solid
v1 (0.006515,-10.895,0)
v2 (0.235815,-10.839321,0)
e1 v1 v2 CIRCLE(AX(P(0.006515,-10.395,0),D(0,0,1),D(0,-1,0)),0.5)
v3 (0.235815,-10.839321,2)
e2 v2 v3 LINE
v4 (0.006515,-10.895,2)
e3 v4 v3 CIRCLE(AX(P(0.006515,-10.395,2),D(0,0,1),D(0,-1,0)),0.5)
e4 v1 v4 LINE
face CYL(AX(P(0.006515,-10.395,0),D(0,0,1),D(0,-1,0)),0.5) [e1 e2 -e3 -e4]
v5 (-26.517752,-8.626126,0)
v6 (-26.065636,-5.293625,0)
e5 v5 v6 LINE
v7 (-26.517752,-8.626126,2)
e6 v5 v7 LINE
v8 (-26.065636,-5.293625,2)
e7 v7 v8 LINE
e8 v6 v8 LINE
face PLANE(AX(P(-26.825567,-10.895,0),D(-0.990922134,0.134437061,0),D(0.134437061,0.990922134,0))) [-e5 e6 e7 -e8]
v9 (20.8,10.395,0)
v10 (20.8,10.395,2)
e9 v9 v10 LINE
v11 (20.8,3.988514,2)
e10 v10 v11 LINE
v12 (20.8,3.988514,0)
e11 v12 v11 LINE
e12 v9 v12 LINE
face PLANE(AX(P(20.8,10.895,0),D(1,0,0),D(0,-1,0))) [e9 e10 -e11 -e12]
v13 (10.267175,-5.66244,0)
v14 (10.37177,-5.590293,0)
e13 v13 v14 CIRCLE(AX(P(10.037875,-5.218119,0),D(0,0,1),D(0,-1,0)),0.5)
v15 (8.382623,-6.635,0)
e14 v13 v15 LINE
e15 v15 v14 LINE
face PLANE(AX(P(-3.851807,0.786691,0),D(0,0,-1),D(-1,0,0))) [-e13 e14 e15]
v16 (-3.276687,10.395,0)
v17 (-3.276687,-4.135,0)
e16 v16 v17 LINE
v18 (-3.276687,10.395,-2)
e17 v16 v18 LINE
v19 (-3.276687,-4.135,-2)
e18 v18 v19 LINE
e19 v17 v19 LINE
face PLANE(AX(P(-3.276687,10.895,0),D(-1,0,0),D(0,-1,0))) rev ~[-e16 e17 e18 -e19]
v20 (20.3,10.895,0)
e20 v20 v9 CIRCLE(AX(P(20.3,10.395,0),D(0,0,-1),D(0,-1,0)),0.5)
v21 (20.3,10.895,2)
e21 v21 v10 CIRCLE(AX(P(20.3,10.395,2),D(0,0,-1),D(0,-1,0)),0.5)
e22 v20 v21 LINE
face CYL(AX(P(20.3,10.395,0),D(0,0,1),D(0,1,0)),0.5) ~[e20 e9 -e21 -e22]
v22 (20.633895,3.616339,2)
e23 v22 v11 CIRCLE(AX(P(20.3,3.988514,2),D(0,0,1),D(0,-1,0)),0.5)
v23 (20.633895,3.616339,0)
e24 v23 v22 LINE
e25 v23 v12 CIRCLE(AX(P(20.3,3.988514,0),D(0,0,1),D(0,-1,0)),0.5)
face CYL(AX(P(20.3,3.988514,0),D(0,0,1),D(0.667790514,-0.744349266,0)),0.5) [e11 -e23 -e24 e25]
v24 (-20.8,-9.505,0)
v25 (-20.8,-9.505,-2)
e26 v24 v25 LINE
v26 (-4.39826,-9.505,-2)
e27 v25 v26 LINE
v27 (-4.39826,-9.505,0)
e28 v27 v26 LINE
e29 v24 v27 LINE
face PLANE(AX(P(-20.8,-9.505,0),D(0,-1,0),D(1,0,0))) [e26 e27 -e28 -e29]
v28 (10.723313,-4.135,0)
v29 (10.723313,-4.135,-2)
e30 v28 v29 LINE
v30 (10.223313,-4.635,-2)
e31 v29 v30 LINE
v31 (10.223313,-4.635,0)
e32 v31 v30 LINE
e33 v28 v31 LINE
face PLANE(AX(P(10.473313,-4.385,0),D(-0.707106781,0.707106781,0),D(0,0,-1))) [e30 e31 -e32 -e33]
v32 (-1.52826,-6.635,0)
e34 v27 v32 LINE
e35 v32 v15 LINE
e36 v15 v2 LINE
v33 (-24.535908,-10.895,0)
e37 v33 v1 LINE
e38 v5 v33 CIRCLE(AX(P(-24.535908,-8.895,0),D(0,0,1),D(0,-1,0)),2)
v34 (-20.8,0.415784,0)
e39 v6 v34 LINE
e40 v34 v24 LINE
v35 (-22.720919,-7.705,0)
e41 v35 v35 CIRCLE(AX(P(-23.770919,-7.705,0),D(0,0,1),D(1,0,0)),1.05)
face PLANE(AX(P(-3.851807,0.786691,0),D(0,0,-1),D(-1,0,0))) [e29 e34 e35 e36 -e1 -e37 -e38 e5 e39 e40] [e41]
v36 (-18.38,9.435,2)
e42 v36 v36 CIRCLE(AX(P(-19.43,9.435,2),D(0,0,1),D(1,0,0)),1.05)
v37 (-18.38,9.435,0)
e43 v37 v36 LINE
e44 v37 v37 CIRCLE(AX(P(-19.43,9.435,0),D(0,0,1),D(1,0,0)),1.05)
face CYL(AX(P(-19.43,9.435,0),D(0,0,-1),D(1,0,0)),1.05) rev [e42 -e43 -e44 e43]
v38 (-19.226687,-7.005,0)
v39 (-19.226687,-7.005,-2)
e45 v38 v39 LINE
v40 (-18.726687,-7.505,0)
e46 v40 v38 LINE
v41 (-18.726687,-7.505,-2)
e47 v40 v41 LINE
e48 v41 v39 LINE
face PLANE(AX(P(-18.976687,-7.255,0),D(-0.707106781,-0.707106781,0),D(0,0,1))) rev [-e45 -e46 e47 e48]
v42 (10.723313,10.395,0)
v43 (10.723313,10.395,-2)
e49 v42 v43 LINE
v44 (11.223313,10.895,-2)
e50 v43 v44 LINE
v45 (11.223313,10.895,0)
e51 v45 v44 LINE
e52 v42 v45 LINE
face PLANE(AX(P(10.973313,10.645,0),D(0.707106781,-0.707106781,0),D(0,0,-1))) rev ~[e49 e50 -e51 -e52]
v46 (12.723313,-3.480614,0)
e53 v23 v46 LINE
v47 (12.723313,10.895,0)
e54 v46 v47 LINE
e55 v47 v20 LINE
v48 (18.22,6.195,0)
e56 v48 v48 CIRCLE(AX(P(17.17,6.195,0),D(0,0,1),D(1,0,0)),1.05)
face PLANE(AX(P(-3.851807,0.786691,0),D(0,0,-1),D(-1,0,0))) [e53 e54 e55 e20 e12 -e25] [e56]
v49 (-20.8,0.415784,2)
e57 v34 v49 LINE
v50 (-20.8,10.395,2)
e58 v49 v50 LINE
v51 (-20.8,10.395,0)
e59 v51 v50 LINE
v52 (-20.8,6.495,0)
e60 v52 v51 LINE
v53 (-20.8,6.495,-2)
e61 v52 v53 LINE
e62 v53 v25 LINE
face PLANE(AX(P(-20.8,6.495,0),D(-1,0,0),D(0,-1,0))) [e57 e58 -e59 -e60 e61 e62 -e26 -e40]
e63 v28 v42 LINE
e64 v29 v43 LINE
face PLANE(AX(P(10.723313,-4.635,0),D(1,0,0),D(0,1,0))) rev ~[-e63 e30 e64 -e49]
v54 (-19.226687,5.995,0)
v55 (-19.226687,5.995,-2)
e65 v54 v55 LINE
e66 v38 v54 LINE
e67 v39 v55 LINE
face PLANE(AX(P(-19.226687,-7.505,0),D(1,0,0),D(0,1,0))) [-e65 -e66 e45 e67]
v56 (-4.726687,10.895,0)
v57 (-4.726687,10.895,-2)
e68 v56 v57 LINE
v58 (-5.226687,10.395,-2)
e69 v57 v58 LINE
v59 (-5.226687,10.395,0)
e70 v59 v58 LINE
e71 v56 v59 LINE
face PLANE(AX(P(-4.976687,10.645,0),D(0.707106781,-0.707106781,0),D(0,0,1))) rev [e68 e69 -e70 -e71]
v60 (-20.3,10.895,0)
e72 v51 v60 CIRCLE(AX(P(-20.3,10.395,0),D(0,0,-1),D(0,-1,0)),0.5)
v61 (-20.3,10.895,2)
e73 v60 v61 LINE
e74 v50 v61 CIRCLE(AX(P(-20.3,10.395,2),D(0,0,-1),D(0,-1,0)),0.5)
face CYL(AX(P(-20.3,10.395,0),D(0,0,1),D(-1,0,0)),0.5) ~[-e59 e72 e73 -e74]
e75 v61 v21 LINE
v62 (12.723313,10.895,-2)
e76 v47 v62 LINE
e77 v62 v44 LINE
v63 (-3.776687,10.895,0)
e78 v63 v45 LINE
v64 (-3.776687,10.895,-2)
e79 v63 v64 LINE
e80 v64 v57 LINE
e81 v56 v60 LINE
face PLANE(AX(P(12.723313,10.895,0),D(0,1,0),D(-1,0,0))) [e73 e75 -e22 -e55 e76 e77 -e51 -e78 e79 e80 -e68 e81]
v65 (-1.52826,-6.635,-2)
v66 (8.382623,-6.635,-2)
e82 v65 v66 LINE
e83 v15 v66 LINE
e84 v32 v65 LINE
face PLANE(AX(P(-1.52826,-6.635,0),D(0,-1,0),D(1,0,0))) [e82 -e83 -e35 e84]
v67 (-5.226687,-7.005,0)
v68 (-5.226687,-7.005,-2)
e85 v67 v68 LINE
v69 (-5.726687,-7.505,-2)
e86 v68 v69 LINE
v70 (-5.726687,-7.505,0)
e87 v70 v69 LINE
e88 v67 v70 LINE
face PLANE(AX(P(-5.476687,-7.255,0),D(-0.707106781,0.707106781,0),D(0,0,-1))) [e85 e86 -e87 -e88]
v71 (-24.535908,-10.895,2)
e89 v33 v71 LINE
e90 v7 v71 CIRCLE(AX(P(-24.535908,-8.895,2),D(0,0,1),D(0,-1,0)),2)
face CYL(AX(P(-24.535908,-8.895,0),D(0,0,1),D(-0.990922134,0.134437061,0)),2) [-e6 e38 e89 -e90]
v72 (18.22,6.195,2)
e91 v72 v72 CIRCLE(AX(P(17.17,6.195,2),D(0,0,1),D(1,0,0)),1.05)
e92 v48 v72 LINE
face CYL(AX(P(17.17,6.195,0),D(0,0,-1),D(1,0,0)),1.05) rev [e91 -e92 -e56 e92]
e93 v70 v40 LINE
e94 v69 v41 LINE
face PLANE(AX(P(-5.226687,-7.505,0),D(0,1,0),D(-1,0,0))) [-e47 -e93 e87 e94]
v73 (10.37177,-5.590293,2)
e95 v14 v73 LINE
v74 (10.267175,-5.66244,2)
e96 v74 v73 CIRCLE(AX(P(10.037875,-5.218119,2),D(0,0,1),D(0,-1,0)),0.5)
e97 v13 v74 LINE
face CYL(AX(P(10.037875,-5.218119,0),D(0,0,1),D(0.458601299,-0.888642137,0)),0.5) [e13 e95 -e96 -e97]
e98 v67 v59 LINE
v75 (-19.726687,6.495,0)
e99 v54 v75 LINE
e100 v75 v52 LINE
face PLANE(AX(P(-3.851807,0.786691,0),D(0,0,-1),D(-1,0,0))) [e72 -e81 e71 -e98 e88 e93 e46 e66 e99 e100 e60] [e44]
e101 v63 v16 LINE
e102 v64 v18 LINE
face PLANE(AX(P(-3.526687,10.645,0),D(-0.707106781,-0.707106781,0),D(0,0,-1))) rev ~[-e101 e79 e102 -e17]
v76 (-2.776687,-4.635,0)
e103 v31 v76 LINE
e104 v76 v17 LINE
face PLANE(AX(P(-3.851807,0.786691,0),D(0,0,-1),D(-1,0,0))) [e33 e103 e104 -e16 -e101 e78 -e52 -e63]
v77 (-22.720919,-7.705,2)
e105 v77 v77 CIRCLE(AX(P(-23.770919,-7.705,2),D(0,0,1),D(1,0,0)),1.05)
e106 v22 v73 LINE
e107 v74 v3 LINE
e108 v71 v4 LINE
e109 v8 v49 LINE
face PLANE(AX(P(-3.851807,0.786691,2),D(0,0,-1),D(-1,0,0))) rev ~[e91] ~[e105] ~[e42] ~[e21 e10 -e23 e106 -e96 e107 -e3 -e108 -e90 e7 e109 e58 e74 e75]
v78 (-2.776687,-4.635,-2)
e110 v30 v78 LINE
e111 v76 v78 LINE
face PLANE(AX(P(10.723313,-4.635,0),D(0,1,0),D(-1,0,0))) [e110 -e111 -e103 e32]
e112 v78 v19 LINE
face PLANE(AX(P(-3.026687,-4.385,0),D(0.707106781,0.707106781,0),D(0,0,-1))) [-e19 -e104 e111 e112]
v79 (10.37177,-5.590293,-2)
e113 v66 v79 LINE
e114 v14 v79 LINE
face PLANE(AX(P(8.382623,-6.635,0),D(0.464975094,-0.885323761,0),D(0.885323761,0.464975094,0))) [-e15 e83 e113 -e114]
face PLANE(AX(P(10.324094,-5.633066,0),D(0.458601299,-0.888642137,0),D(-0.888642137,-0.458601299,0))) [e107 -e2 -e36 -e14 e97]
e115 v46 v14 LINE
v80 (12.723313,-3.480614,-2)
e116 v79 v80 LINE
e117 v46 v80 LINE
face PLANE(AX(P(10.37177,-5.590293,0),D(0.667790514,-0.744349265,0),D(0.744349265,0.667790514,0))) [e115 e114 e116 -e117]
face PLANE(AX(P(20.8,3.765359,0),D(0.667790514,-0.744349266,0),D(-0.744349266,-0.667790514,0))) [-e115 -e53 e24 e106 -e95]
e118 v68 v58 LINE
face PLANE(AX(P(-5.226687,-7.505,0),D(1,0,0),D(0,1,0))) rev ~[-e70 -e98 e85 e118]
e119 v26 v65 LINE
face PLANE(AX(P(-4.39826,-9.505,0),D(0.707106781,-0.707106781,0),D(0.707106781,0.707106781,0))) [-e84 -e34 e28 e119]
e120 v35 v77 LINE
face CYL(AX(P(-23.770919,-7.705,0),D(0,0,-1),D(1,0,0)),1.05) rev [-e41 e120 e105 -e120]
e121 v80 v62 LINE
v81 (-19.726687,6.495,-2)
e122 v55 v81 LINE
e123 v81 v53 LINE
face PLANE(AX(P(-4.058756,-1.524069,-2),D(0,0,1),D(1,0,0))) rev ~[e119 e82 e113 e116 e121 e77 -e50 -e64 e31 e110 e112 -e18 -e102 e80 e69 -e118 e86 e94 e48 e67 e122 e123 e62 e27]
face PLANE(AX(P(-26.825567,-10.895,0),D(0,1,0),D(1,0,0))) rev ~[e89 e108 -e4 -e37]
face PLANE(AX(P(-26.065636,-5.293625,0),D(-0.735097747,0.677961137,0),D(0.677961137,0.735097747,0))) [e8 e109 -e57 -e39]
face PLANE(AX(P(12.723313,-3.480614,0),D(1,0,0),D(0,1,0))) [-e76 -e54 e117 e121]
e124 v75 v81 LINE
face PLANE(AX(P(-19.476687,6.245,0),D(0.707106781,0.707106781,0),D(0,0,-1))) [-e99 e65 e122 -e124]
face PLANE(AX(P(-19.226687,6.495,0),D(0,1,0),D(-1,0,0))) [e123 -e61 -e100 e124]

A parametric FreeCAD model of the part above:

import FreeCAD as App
import Part
import Sketcher
from FreeCAD import Vector
Q = App.Units.Quantity


def edges_at(feature, points):
    """Names of the edges that pass closest to the given points."""
    edges = feature.Shape.Edges
    near = lambda p: min(range(len(edges)), key=lambda i: edges[i].distToShape(Part.Vertex(*p))[0])
    return sorted({f"Edge{near(p) + 1}" for p in points})


def add_polygon(sketch, points):
    """Adds a closed chain of lines whose ends are joined by coincident constraints."""
    first, n = sketch.GeometryCount, len(points)
    for a, b in zip(points, points[1:] + points[:1]):
        sketch.addGeometry(Part.LineSegment(App.Vector(*a, 0), App.Vector(*b, 0)), False)
    for i in range(n):
        sketch.addConstraint(Sketcher.Constraint("Coincident", first + i, 2, first + (i + 1) % n, 1))

doc = App.newDocument("Part")
body = doc.addObject("PartDesign::Body", "Body")

# Sketch on XY plane
sketch1 = body.newObject("Sketcher::SketchObject", "Sketch")
sketch1.AttachmentSupport = (doc.getObject("XY_Plane"), [""])
sketch1.MapMode = "FlatFace"
add_polygon(sketch1, [(20.8, 10.9), (-20.8, 10.9), (-20.8, 0.4), (-26.1, -5.3), (-26.8, -10.9), (0.1, -10.9), (10.3, -5.6), (20.8, 3.8)])  # lines 0-7
sketch1.addGeometry(Part.Circle(Vector(-23.8, -7.7, 0), Vector(0, 0, 1), 1.1), False)  # 8
sketch1.addGeometry(Part.Circle(Vector(17.2, 6.2, 0), Vector(0, 0, 1), 1.1), False)  # 9
sketch1.addGeometry(Part.Circle(Vector(-19.4, 9.4, 0), Vector(0, 0, 1), 1.1), False)  # 10
sketch1.addConstraint([
    Sketcher.Constraint("Horizontal", 0),
    Sketcher.Constraint("Vertical", 1),
    Sketcher.Constraint("Horizontal", 4),
    Sketcher.Constraint("Vertical", 7),
    Sketcher.Constraint("Equal", 8, 9),
    Sketcher.Constraint("Equal", 9, 10),
    Sketcher.Constraint("Diameter", 8, Q("2.1 mm")),
    Sketcher.Constraint("DistanceX", 0, 2, 0, 1, Q("41.6 mm")),
    Sketcher.Constraint("DistanceX", 0, 2, -1, 1, Q("20.8 mm")),
    Sketcher.Constraint("DistanceY", 8, 3, 9, 3, Q("13.9 mm")),
    Sketcher.Constraint("DistanceX", 10, 3, 9, 3, Q("36.6 mm")),
    Sketcher.Constraint("DistanceY", 8, 3, 0, 2, Q("18.6 mm")),
    Sketcher.Constraint("DistanceX", -1, 1, 9, 3, Q("17.17 mm")),
    Sketcher.Constraint("DistanceY", 8, 3, 10, 3, Q("17.14 mm")),
    Sketcher.Constraint("DistanceY", 3, 2, 8, 3, Q("3.19 mm")),
    Sketcher.Constraint("DistanceY", 8, 3, -1, 1, Q("7.705 mm")),
    Sketcher.Constraint("DistanceX", 4, 1, 4, 2, Q("26.953492 mm")),
    Sketcher.Constraint("DistanceY", 7, 1, 7, 2, Q("7.129641 mm")),
    Sketcher.Constraint("Distance", 2, Q("7.76687 mm")),
    Sketcher.Constraint("Distance", 3, Q("5.652689 mm")),
    Sketcher.Constraint("DistanceY", 1, 2, 1, 1, Q("10.479216 mm")),
    Sketcher.Constraint("DistanceX", 8, 3, -1, 1, Q("23.770919 mm")),
    Sketcher.Constraint("DistanceY", 2, 2, 1, 2, Q("5.709409 mm")),
    Sketcher.Constraint("DistanceX", 4, 2, 5, 2, Q("10.196169 mm")),
    Sketcher.Constraint("DistanceY", 5, 2, 1, 2, Q("6.04885 mm")),
])
pad1 = body.newObject("PartDesign::Pad", "Pad")
pad1.Profile = sketch1
pad1.Length = 2
doc.recompute()

fillet = body.newObject("PartDesign::Fillet", "Fillet")
fillet.Base = (pad1, edges_at(pad1, [(-26.826, -10.895, 1)]))
fillet.Radius = 2
doc.recompute()

fillet2 = body.newObject("PartDesign::Fillet", "Fillet001")
fillet2.Base = (fillet, edges_at(fillet, [
    (-20.8, 10.895, 1),
    (20.8, 10.895, 1),
    (20.8, 3.765, 1),
    (10.324, -5.633, 1),
    (0.128, -10.895, 1),
]))
fillet2.Radius = 0.5

# Sketch on XY plane
sketch2 = body.newObject("Sketcher::SketchObject", "Sketch001")
sketch2.AttachmentSupport = (doc.getObject("XY_Plane"), [""])
sketch2.MapMode = "FlatFace"
add_polygon(sketch2, [(10.7, -4.6), (10.7, 10.9), (12.7, 10.9), (12.7, -3.5), (10.4, -5.6), (8.4, -6.6), (-1.5, -6.6), (-4.4, -9.5), (-20.8, -9.5), (-20.8, 6.5), (-19.2, 6.5), (-19.2, -7.5), (-5.2, -7.5), (-5.2, 10.9), (-3.3, 10.9), (-3.3, -4.6)])  # lines 0-15
sketch2.addConstraint([
    Sketcher.Constraint("Vertical", 0),
    Sketcher.Constraint("Horizontal", 1),
    Sketcher.Constraint("Vertical", 2),
    Sketcher.Constraint("Horizontal", 5),
    Sketcher.Constraint("Horizontal", 7),
    Sketcher.Constraint("Vertical", 8),
    Sketcher.Constraint("Horizontal", 9),
    Sketcher.Constraint("Vertical", 10),
    Sketcher.Constraint("Horizontal", 11),
    Sketcher.Constraint("Vertical", 12),
    Sketcher.Constraint("Horizontal", 13),
    Sketcher.Constraint("Vertical", 14),
    Sketcher.Constraint("Horizontal", 15),
    Sketcher.Constraint("Horizontal", 1, 2, 12, 2),
    Sketcher.Constraint("Equal", 11, 15),
    Sketcher.Constraint("Equal", 15, 10),
    Sketcher.Constraint("DistanceX", 1, 1, 1, 2, Q("2 mm")),
    Sketcher.Constraint("DistanceX", 11, 1, 11, 2, Q("14 mm")),
    Sketcher.Constraint("DistanceY", 8, 1, 8, 2, Q("16 mm")),
    Sketcher.Constraint("Angle", 6, Q("-135 deg")),
    Sketcher.Constraint("DistanceY", 12, 1, 12, 2, Q("18.4 mm")),
    Sketcher.Constraint("DistanceY", 5, 2, 14, 2, Q("2 mm")),
    Sketcher.Constraint("DistanceX", 13, 1, 13, 2, Q("1.95 mm")),
    Sketcher.Constraint("DistanceY", 0, 1, 0, 2, Q("15.53 mm")),
    Sketcher.Constraint("DistanceX", 7, 2, -1, 1, Q("20.8 mm")),
    Sketcher.Constraint("DistanceY", -1, 1, 0, 2, Q("10.895 mm")),
    Sketcher.Constraint("Distance", 4, Q("2.246801 mm")),
    Sketcher.Constraint("DistanceX", 7, 2, 7, 1, Q("16.40174 mm")),
    Sketcher.Constraint("DistanceX", 5, 2, 5, 1, Q("9.910883 mm")),
    Sketcher.Constraint("DistanceX", 9, 1, 9, 2, Q("1.573313 mm")),
    Sketcher.Constraint("DistanceY", 2, 2, 2, 1, Q("14.375614 mm")),
    Sketcher.Constraint("DistanceX", -1, 1, 3, 2, Q("10.37177 mm")),
])
pad2 = body.newObject("PartDesign::Pad", "Pad001")
pad2.Profile = sketch2
pad2.Length = 2
pad2.Reversed = True
doc.recompute()

chamfer = body.newObject("PartDesign::Chamfer", "Chamfer")
chamfer.Base = (pad2, edges_at(pad2, [
    (10.723, 10.895, -1),
    (-19.227, 6.495, -1),
    (-19.227, -7.505, -1),
    (-5.227, -7.505, -1),
    (-5.227, 10.895, -1),
    (-3.277, 10.895, -1),
    (-3.277, -4.635, -1),
    (10.723, -4.635, -1),
]))
chamfer.Size = 0.5

doc.recompute()
